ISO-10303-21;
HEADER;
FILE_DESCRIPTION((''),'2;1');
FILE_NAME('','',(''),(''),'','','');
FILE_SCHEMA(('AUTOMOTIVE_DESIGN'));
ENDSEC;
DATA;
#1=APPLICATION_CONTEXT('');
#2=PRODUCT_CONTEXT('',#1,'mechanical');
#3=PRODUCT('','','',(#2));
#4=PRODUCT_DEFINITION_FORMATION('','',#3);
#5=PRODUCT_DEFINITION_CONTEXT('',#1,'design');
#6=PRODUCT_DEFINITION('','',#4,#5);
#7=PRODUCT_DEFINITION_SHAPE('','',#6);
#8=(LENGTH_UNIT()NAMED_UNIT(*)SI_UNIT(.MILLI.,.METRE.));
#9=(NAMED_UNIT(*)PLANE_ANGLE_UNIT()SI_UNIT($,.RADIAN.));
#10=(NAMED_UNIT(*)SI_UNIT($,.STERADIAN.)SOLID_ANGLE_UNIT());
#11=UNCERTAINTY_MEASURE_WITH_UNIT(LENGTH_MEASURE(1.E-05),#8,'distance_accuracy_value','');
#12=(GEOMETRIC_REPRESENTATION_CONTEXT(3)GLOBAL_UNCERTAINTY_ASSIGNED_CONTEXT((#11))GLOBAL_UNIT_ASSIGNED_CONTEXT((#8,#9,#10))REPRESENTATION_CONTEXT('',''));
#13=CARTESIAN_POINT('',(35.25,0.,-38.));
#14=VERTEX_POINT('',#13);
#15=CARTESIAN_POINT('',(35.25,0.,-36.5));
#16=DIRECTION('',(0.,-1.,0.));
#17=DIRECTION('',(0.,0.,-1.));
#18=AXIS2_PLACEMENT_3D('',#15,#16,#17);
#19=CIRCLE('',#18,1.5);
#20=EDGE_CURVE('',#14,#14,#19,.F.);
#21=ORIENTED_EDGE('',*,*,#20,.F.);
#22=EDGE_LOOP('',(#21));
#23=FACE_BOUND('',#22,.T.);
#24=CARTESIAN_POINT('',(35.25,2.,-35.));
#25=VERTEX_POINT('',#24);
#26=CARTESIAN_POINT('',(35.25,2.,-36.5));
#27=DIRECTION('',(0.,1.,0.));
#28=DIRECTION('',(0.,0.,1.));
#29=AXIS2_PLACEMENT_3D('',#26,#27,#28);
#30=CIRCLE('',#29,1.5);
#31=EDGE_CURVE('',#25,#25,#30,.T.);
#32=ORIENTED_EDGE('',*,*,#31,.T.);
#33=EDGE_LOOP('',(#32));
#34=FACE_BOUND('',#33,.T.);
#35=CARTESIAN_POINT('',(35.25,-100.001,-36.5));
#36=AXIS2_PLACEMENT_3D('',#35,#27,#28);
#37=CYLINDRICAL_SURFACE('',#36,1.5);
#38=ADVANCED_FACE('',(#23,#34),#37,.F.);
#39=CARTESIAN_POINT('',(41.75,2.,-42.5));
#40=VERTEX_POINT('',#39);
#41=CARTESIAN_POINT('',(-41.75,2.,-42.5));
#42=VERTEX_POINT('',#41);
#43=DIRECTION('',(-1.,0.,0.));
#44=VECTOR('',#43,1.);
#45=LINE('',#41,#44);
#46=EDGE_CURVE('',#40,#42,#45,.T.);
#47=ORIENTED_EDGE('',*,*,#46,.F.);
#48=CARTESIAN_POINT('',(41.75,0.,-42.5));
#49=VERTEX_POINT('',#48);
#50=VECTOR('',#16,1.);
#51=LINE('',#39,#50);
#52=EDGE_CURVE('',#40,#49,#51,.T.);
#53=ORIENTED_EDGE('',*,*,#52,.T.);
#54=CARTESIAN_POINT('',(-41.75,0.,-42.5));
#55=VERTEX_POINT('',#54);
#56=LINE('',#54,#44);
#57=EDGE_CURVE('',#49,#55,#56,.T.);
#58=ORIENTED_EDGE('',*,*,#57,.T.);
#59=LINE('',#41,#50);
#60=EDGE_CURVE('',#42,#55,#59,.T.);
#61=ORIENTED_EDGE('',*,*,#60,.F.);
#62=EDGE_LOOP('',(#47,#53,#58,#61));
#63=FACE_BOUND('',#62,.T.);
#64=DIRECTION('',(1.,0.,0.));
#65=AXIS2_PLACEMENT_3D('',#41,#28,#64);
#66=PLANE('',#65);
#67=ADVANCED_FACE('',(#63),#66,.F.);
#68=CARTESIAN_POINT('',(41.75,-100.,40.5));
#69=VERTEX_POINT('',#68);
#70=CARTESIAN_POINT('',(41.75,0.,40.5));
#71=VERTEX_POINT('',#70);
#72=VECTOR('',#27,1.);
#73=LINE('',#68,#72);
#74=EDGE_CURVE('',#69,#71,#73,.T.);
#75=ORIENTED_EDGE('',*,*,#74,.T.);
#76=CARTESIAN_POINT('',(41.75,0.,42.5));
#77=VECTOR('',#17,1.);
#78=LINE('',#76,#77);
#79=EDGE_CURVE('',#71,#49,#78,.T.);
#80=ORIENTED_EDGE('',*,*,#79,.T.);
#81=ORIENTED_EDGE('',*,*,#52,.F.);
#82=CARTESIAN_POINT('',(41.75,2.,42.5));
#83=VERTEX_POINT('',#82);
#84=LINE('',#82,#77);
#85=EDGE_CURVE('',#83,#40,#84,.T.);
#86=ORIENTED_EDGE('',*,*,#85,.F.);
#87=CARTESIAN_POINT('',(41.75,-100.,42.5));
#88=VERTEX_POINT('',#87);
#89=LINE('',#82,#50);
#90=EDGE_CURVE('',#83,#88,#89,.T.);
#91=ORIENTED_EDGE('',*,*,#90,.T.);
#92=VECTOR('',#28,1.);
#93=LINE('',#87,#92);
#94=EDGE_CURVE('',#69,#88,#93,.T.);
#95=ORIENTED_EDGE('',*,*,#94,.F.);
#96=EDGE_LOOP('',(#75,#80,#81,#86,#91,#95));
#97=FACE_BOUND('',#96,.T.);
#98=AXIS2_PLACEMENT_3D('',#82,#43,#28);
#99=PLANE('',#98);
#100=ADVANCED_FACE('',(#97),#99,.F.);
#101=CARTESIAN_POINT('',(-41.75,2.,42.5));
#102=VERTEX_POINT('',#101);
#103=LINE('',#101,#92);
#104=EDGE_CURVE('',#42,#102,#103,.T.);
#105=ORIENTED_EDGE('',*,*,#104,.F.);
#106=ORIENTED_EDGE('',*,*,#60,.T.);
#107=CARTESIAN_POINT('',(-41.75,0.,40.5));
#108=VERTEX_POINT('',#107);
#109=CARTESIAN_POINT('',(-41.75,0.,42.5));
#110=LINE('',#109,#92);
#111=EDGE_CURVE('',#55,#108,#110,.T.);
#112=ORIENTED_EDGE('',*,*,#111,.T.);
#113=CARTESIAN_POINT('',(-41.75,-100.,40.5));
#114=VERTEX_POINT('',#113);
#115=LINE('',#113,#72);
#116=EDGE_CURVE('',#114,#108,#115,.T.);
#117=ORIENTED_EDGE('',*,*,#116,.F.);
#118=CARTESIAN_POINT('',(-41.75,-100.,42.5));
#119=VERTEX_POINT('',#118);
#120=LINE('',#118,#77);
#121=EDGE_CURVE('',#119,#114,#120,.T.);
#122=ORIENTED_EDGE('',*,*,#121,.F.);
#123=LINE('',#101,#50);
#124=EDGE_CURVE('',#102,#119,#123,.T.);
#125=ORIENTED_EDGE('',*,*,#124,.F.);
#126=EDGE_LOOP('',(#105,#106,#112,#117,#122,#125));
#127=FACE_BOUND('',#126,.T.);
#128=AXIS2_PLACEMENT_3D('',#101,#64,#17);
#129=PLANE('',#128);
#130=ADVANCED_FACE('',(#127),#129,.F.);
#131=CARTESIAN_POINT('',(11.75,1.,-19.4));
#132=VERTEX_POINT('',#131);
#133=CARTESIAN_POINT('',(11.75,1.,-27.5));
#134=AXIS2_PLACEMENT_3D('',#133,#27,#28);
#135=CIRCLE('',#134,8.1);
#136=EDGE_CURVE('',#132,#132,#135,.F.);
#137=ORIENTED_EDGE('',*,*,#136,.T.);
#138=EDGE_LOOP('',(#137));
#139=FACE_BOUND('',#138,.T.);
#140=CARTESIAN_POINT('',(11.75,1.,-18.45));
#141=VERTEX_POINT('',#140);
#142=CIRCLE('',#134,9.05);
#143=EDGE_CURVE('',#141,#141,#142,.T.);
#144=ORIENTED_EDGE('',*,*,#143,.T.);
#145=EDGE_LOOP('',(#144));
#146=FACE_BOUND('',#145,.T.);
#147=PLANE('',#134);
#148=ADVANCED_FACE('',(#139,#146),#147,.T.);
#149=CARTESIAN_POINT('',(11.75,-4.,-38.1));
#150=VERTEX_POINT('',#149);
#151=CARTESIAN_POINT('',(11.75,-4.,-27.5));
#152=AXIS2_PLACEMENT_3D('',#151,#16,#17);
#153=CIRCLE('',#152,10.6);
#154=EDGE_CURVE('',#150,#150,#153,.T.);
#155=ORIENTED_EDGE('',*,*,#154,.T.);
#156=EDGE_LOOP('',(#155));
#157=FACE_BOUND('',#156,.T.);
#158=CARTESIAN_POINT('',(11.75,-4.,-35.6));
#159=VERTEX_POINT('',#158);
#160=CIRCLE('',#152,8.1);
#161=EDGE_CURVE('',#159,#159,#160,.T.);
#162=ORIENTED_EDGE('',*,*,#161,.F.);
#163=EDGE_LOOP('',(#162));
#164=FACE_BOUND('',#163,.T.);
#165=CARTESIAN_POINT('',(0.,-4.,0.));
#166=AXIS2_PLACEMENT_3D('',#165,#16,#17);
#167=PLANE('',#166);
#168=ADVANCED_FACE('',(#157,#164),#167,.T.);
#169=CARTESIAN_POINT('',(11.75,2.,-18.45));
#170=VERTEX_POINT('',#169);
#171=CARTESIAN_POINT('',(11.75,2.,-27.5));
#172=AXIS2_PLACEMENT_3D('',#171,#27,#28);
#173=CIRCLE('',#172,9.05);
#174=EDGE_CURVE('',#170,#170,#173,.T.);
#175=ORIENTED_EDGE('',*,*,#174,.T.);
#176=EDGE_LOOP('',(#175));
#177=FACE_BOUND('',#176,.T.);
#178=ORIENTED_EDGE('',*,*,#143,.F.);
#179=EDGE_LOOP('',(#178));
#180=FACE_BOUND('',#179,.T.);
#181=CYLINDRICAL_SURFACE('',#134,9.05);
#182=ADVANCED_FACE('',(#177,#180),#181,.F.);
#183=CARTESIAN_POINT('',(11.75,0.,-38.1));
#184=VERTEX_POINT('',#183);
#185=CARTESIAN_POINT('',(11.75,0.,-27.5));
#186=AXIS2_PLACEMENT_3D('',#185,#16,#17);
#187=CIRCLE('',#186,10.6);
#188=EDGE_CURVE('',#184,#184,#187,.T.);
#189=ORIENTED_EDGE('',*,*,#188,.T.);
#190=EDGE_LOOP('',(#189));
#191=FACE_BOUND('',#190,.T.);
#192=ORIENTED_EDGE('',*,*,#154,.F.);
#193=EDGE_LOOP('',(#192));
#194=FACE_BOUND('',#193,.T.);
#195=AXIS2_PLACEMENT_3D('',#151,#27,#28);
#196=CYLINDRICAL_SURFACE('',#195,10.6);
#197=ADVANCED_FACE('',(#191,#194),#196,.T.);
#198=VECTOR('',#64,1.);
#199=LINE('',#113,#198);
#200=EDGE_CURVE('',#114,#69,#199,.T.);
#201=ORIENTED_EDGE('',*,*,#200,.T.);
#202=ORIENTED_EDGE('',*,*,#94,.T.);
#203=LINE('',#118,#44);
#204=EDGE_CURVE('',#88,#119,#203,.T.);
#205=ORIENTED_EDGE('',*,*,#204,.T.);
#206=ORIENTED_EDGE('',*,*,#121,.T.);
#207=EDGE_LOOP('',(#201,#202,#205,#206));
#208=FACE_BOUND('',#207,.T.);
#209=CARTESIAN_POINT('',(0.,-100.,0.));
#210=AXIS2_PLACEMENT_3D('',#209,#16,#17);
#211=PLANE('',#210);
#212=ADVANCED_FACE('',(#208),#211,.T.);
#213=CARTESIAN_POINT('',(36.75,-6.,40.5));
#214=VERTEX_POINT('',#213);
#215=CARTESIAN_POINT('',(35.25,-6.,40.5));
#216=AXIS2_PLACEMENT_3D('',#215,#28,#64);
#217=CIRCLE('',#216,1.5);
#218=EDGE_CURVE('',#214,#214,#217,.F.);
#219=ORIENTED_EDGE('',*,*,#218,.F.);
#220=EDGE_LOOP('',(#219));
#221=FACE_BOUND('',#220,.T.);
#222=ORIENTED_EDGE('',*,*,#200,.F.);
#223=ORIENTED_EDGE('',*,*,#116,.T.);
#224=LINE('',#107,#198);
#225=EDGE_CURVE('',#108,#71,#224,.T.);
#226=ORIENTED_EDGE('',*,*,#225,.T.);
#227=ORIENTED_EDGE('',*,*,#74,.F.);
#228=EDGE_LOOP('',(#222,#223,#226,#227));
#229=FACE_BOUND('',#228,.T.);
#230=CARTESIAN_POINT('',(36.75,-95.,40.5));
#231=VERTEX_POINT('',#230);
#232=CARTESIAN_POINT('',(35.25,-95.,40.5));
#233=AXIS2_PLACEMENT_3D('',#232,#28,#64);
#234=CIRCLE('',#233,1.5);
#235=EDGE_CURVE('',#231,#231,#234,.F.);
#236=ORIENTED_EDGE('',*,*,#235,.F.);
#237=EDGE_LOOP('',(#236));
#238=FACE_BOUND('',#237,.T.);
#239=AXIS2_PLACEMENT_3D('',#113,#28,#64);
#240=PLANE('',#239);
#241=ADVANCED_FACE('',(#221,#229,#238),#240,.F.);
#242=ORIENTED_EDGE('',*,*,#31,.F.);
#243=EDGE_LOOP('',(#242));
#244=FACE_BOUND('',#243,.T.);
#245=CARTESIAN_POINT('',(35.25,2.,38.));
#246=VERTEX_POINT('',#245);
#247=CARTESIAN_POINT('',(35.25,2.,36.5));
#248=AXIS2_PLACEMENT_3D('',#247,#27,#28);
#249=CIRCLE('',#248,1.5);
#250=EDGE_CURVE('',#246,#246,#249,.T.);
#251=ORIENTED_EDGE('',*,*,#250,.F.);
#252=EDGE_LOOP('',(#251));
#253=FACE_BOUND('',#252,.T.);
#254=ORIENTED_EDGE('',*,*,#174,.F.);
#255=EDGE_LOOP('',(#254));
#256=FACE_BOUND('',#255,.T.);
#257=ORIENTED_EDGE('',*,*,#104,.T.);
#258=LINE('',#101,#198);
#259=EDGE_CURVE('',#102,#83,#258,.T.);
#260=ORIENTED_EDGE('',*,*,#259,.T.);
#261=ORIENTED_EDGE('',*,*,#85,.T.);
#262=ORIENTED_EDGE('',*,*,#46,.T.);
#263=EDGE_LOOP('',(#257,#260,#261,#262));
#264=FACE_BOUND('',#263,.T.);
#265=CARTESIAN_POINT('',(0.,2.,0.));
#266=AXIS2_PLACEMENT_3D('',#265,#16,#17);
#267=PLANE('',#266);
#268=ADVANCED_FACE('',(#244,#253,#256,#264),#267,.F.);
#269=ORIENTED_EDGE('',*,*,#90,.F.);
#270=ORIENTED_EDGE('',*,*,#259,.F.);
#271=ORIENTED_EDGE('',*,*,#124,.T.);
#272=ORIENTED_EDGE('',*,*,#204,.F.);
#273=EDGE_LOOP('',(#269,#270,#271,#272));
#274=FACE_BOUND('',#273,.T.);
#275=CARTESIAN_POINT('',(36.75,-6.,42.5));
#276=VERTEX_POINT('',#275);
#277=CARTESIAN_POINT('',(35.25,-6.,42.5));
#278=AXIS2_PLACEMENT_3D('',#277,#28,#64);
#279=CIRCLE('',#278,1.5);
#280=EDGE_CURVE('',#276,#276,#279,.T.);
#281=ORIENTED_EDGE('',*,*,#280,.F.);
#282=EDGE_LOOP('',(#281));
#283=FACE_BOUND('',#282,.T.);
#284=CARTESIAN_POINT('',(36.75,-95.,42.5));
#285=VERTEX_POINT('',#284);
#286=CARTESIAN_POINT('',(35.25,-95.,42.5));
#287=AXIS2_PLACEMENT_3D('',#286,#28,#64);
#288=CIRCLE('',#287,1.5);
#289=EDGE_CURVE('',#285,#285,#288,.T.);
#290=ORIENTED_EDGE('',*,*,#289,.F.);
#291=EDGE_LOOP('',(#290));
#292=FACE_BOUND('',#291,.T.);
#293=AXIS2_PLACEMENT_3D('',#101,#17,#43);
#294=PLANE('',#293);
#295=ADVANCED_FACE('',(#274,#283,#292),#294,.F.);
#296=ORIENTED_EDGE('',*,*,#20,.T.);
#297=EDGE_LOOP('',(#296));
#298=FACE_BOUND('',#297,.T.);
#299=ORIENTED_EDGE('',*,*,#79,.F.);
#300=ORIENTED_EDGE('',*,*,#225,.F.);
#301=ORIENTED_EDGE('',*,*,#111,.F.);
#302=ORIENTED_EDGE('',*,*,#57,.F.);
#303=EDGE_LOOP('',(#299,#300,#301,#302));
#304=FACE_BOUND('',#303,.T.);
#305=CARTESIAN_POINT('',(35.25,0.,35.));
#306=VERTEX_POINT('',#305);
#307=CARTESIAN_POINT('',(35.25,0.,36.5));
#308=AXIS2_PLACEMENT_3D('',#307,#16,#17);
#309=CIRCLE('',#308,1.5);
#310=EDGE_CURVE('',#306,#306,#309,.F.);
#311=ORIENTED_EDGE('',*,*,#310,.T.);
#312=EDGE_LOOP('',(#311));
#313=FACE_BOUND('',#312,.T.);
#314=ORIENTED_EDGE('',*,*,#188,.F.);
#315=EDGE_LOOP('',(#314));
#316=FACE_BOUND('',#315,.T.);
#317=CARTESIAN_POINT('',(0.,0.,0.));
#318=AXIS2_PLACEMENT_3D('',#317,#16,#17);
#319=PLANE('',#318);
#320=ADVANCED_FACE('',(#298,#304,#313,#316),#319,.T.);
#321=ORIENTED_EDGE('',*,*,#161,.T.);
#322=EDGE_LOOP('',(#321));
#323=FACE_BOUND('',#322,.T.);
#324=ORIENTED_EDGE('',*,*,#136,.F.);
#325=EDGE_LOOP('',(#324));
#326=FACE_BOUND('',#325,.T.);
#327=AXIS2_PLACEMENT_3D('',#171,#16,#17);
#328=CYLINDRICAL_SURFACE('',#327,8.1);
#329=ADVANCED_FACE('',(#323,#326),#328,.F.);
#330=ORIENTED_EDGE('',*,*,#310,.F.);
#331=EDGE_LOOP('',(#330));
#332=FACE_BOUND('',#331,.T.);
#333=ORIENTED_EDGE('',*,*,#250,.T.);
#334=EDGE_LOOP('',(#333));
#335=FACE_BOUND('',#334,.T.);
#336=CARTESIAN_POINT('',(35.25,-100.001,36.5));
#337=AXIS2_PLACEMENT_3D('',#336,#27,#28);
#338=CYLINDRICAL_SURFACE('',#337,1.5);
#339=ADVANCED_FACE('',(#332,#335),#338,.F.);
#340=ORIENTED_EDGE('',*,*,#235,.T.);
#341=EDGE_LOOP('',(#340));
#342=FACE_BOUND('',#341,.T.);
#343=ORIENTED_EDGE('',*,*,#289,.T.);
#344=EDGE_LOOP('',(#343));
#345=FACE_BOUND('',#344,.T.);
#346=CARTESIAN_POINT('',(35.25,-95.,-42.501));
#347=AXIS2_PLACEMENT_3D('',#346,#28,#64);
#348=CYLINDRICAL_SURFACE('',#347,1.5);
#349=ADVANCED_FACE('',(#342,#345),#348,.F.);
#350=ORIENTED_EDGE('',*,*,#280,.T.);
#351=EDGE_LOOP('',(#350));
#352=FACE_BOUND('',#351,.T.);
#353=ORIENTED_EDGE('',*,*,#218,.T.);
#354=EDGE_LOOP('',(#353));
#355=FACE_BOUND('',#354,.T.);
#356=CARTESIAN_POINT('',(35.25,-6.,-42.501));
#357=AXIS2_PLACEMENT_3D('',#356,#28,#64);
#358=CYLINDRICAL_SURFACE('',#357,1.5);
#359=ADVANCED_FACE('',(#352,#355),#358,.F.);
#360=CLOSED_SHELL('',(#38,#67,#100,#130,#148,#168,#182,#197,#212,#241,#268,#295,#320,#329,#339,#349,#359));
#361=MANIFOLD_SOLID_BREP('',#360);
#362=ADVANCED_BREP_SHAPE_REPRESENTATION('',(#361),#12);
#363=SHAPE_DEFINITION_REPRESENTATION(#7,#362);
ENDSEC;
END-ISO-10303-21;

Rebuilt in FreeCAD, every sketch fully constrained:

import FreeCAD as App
import Part
import Sketcher
Q = App.Units.Quantity

doc = App.newDocument("Part")
body = doc.addObject("PartDesign::Body", "Body")

# Sketch on XZ plane
sketch1 = body.newObject("Sketcher::SketchObject", "Sketch")
sketch1.AttachmentSupport = (doc.getObject("XZ_Plane"), [""])
sketch1.MapMode = "FlatFace"
sketch1.addGeometry([
    Part.LineSegment(App.Vector(-42, -42, 0), App.Vector(-42, 42, 0)),
    Part.LineSegment(App.Vector(-42, 42, 0), App.Vector(42, 42, 0)),
    Part.LineSegment(App.Vector(42, 42, 0), App.Vector(42, -42, 0)),
    Part.LineSegment(App.Vector(42, -42, 0), App.Vector(-42, -42, 0)),
], False)
sketch1.addConstraint([
    Sketcher.Constraint("Coincident", 0, 2, 1, 1),
    Sketcher.Constraint("Coincident", 1, 2, 2, 1),
    Sketcher.Constraint("Coincident", 2, 2, 3, 1),
    Sketcher.Constraint("Coincident", 3, 2, 0, 1),
    Sketcher.Constraint("Vertical", 0),
    Sketcher.Constraint("Horizontal", 1),
    Sketcher.Constraint("Vertical", 2),
    Sketcher.Constraint("Horizontal", 3),
    Sketcher.Constraint("Symmetric", 0, 2, 2, 2, -1, 1),
    Sketcher.Constraint("DistanceY", 0, 1, 0, 2, Q("85 mm")),
    Sketcher.Constraint("DistanceX", 1, 1, 1, 2, Q("83.5 mm")),
])
pad1 = body.newObject("PartDesign::Pad", "Pad")
pad1.Profile = sketch1
pad1.Length = 2
pad1.Reversed = True

# Sketch on XZ plane
sketch2 = body.newObject("Sketcher::SketchObject", "Sketch001")
sketch2.AttachmentSupport = (doc.getObject("XZ_Plane"), [""])
sketch2.MapMode = "FlatFace"
sketch2.addGeometry([
    Part.LineSegment(App.Vector(41.8, 40.5, 0), App.Vector(41.8, 42.5, 0)),
    Part.LineSegment(App.Vector(41.8, 42.5, 0), App.Vector(-41.8, 42.5, 0)),
    Part.LineSegment(App.Vector(-41.8, 42.5, 0), App.Vector(-41.8, 40.5, 0)),
    Part.LineSegment(App.Vector(-41.8, 40.5, 0), App.Vector(41.8, 40.5, 0)),
], False)
sketch2.addConstraint([
    Sketcher.Constraint("Coincident", 0, 2, 1, 1),
    Sketcher.Constraint("Coincident", 1, 2, 2, 1),
    Sketcher.Constraint("Coincident", 2, 2, 3, 1),
    Sketcher.Constraint("Coincident", 3, 2, 0, 1),
    Sketcher.Constraint("Vertical", 0),
    Sketcher.Constraint("Horizontal", 1),
    Sketcher.Constraint("Vertical", 2),
    Sketcher.Constraint("Horizontal", 3),
    Sketcher.Constraint("DistanceY", 0, 1, 0, 2, Q("2 mm")),
    Sketcher.Constraint("DistanceX", 1, 2, 1, 1, Q("83.5 mm")),
    Sketcher.Constraint("DistanceY", -1, 1, 0, 2, Q("42.5 mm")),
    Sketcher.Constraint("DistanceX", -1, 1, 0, 2, Q("41.75 mm")),
])
pad2 = body.newObject("PartDesign::Pad", "Pad001")
pad2.Profile = sketch2
pad2.Length = 100

# Sketch on XZ plane
sketch3 = body.newObject("Sketcher::SketchObject", "Sketch002")
sketch3.AttachmentSupport = (doc.getObject("XZ_Plane"), [""])
sketch3.MapMode = "FlatFace"
sketch3.addGeometry([
    Part.Circle(App.Vector(12, -28, 0), App.Vector(0, 0, 1), 11),
    Part.Circle(App.Vector(12, -28, 0), App.Vector(0, 0, 1), 8),
], False)
sketch3.addConstraint([
    Sketcher.Constraint("Coincident", 1, 3, 0, 3),
    Sketcher.Constraint("Diameter", 0, Q("21.2 mm")),
    Sketcher.Constraint("Diameter", 1, Q("16.2 mm")),
    Sketcher.Constraint("DistanceY", 0, 3, -1, 1, Q("27.5 mm")),
    Sketcher.Constraint("DistanceX", -1, 1, 0, 3, Q("11.75 mm")),
])
pad3 = body.newObject("PartDesign::Pad", "Pad002")
pad3.Profile = sketch3
pad3.Length = 4

# Sketch on XZ plane
sketch4 = body.newObject("Sketcher::SketchObject", "Sketch003")
sketch4.AttachmentSupport = (doc.getObject("XZ_Plane"), [""])
sketch4.MapMode = "FlatFace"
sketch4.addGeometry(Part.Circle(App.Vector(12, -28, 0), App.Vector(0, 0, 1), 8), False)
sketch4.addConstraint([
    Sketcher.Constraint("Diameter", 0, Q("16.2 mm")),
    Sketcher.Constraint("DistanceY", 0, 3, -1, 1, Q("27.5 mm")),
    Sketcher.Constraint("DistanceX", -1, 1, 0, 3, Q("11.75 mm")),
])
pocket1 = body.newObject("PartDesign::Pocket", "Pocket")
pocket1.Profile = sketch4
pocket1.Type = "ThroughAll"
pocket1.Midplane = True

# Sketch on XZ plane
sketch5 = body.newObject("Sketcher::SketchObject", "Sketch004")
sketch5.AttachmentSupport = (doc.getObject("XZ_Plane"), [""])
sketch5.MapMode = "FlatFace"
sketch5.AttachmentOffset = App.Placement(App.Vector(0, 0, -2), App.Rotation())
sketch5.addGeometry(Part.Circle(App.Vector(12, -28, 0), App.Vector(0, 0, 1), 9), False)
sketch5.addConstraint([
    Sketcher.Constraint("Diameter", 0, Q("18.1 mm")),
    Sketcher.Constraint("DistanceY", 0, 3, -1, 1, Q("27.5 mm")),
    Sketcher.Constraint("DistanceX", -1, 1, 0, 3, Q("11.75 mm")),
])
pocket2 = body.newObject("PartDesign::Pocket", "Pocket001")
pocket2.Profile = sketch5
pocket2.Length = 1
pocket2.Reversed = True

# Sketch on XY plane
sketch6 = body.newObject("Sketcher::SketchObject", "Sketch005")
sketch6.AttachmentSupport = (doc.getObject("XY_Plane"), [""])
sketch6.MapMode = "FlatFace"
sketch6.AttachmentOffset = App.Placement(App.Vector(0, 0, 42.5), App.Rotation())
sketch6.addGeometry(Part.Circle(App.Vector(35.2, -95, 0), App.Vector(0, 0, 1), 1.5), False)
sketch6.addConstraint([
    Sketcher.Constraint("Diameter", 0, Q("3 mm")),
    Sketcher.Constraint("DistanceY", 0, 3, -1, 1, Q("95 mm")),
    Sketcher.Constraint("DistanceX", -1, 1, 0, 3, Q("35.25 mm")),
])
pocket3 = body.newObject("PartDesign::Pocket", "Pocket002")
pocket3.Profile = sketch6
pocket3.Type = "UpToFirst"

# Sketch on XY plane
sketch7 = body.newObject("Sketcher::SketchObject", "Sketch006")
sketch7.AttachmentSupport = (doc.getObject("XY_Plane"), [""])
sketch7.MapMode = "FlatFace"
sketch7.AttachmentOffset = App.Placement(App.Vector(0, 0, 42.5), App.Rotation())
sketch7.addGeometry(Part.Circle(App.Vector(35.2, -6, 0), App.Vector(0, 0, 1), 1.5), False)
sketch7.addConstraint([
    Sketcher.Constraint("Diameter", 0, Q("3 mm")),
    Sketcher.Constraint("DistanceY", 0, 3, -1, 1, Q("6 mm")),
    Sketcher.Constraint("DistanceX", -1, 1, 0, 3, Q("35.25 mm")),
])
pocket4 = body.newObject("PartDesign::Pocket", "Pocket003")
pocket4.Profile = sketch7
pocket4.Type = "UpToFirst"

# Sketch on XZ plane
sketch8 = body.newObject("Sketcher::SketchObject", "Sketch007")
sketch8.AttachmentSupport = (doc.getObject("XZ_Plane"), [""])
sketch8.MapMode = "FlatFace"
sketch8.AttachmentOffset = App.Placement(App.Vector(0, 0, -2), App.Rotation())
sketch8.addGeometry(Part.Circle(App.Vector(35.2, 36.5, 0), App.Vector(0, 0, 1), 1.5), False)
sketch8.addConstraint([
    Sketcher.Constraint("Diameter", 0, Q("3 mm")),
    Sketcher.Constraint("DistanceY", -1, 1, 0, 3, Q("36.5 mm")),
    Sketcher.Constraint("DistanceX", -1, 1, 0, 3, Q("35.25 mm")),
])
pocket5 = body.newObject("PartDesign::Pocket", "Pocket004")
pocket5.Profile = sketch8
pocket5.Type = "UpToFirst"
pocket5.Reversed = True

# Sketch on XZ plane
sketch9 = body.newObject("Sketcher::SketchObject", "Sketch008")
sketch9.AttachmentSupport = (doc.getObject("XZ_Plane"), [""])
sketch9.MapMode = "FlatFace"
sketch9.AttachmentOffset = App.Placement(App.Vector(0, 0, -2), App.Rotation())
sketch9.addGeometry(Part.Circle(App.Vector(35.2, -36.5, 0), App.Vector(0, 0, 1), 1.5), False)
sketch9.addConstraint([
    Sketcher.Constraint("Diameter", 0, Q("3 mm")),
    Sketcher.Constraint("DistanceY", 0, 3, -1, 1, Q("36.5 mm")),
    Sketcher.Constraint("DistanceX", -1, 1, 0, 3, Q("35.25 mm")),
])
pocket6 = body.newObject("PartDesign::Pocket", "Pocket005")
pocket6.Profile = sketch9
pocket6.Type = "UpToFirst"
pocket6.Reversed = True

doc.recompute()
